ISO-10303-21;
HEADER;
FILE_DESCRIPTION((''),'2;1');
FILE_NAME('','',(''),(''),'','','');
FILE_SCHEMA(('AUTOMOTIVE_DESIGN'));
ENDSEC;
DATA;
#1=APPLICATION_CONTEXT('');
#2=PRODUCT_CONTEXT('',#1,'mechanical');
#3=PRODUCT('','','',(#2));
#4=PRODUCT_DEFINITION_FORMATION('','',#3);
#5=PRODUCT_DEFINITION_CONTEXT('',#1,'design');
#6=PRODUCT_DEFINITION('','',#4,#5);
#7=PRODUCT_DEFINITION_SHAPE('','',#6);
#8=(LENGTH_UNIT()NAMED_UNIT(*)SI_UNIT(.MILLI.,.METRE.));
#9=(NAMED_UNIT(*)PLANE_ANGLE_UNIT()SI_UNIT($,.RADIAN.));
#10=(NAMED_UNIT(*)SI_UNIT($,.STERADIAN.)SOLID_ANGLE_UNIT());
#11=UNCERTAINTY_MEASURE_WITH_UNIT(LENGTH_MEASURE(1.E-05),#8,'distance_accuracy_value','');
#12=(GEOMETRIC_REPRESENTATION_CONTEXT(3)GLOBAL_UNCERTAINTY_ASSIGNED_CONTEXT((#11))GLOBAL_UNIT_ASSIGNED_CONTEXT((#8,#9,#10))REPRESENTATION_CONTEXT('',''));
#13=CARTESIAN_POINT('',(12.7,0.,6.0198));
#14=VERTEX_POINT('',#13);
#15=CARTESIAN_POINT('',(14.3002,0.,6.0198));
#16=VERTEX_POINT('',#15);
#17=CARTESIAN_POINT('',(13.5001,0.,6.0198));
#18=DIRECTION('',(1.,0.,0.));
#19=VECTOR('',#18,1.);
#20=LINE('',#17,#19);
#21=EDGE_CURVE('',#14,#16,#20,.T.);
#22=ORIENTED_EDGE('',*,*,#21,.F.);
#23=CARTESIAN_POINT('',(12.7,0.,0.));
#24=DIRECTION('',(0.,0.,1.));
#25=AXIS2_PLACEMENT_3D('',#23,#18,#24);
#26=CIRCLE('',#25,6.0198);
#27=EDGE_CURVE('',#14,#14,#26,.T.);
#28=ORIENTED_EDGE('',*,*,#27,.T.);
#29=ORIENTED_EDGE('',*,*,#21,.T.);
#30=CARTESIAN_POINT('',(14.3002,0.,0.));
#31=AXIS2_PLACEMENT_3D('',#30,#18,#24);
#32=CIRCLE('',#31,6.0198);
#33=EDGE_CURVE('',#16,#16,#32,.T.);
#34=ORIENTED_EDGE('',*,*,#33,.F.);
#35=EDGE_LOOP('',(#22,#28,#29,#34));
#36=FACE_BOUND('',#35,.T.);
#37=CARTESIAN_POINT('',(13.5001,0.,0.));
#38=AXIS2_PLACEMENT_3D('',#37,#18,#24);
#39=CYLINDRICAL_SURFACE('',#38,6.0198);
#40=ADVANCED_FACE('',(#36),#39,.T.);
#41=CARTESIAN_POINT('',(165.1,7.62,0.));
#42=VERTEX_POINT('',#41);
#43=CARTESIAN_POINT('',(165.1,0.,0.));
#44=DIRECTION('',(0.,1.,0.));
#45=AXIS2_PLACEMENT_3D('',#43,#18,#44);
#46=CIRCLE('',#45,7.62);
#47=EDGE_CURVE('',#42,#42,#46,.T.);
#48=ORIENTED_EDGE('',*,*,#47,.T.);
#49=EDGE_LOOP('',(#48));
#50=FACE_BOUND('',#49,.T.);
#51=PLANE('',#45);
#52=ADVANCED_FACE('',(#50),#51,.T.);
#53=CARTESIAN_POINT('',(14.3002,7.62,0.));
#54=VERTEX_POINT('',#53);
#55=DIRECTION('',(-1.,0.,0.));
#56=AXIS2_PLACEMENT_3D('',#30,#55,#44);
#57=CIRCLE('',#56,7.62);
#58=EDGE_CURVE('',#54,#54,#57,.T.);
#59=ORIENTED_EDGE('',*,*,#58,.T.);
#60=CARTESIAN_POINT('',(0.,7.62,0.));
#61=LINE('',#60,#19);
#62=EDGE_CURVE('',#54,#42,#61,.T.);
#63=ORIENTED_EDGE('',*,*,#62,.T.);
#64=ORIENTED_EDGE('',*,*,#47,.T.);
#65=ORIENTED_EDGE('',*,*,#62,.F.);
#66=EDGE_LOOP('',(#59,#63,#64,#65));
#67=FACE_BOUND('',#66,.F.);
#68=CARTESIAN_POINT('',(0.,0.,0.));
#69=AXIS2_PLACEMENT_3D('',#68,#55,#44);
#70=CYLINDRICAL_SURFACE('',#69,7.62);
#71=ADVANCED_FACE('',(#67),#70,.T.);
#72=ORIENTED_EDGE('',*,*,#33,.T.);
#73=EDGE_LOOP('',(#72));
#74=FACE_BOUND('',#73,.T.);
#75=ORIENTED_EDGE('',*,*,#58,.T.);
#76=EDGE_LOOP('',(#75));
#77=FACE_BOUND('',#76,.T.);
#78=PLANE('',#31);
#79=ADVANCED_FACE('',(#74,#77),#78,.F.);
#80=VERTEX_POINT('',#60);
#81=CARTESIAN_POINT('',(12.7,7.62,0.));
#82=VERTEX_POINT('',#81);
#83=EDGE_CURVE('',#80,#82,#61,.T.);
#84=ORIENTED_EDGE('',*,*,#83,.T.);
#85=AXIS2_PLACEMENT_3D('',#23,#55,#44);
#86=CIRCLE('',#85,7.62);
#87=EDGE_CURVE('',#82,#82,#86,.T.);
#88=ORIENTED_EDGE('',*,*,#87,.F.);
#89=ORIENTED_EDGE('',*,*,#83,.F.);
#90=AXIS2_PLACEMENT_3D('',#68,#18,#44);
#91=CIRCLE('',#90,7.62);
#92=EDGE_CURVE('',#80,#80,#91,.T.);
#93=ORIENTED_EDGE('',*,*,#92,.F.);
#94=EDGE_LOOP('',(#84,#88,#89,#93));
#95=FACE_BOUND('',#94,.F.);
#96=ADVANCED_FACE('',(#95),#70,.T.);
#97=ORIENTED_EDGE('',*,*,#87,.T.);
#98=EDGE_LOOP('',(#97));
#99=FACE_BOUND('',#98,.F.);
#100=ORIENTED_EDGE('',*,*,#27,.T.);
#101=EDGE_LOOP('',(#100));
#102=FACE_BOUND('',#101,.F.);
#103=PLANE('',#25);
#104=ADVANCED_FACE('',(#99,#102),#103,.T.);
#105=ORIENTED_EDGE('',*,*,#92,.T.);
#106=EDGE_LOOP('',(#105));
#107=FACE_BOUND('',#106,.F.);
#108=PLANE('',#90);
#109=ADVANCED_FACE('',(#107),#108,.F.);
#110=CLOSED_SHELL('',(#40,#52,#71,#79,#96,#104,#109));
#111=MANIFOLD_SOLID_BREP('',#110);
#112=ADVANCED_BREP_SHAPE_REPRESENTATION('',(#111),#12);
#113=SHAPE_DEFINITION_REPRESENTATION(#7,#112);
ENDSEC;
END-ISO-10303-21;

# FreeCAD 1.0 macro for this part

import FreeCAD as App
import Part
import Sketcher
from FreeCAD import Vector
Q = App.Units.Quantity


def add_polygon(sketch, points):
    """Adds a closed chain of lines whose ends are joined by coincident constraints."""
    first, n = sketch.GeometryCount, len(points)
    for a, b in zip(points, points[1:] + points[:1]):
        sketch.addGeometry(Part.LineSegment(App.Vector(*a, 0), App.Vector(*b, 0)), False)
    for i in range(n):
        sketch.addConstraint(Sketcher.Constraint("Coincident", first + i, 2, first + (i + 1) % n, 1))

doc = App.newDocument("Part")
params = doc.addObject("Spreadsheet::Sheet", "Params")
for row, (alias, value) in enumerate([
    ("sketch1_diameter", "0.6 in"),
    ("pad1_length", "6.5 in"),
    ("sketch2_width", "0.063 in"),
    ("groove_angle", "360 deg"),
], start=1):
    params.set(f"A{row}", alias)
    params.set(f"B{row}", "=" + value)
    params.setAlias(f"B{row}", alias)

body = doc.addObject("PartDesign::Body", "Body")

# Sketch on YZ plane
sketch1 = doc.addObject("Sketcher::SketchObject", "Sketch")
body.addObject(sketch1)
sketch1.AttachmentSupport = (doc.YZ_Plane, [""])
sketch1.MapMode = "FlatFace"
sketch1.addGeometry(Part.Circle(Vector(0, 0, 0), Vector(0, 0, 1), 8), False)
sketch1.addConstraint(Sketcher.Constraint("Coincident", 0, 3, -1, 1))
sketch1.addConstraint(Sketcher.Constraint("Diameter", 0, Q("0.6 in")))
sketch1.setExpression("Constraints[1]", "Params.sketch1_diameter")
pad1 = doc.addObject("PartDesign::Pad", "Pad")
body.addObject(pad1)
pad1.Profile = sketch1
pad1.setExpression("Length", "Params.pad1_length")

# Sketch on XZ plane
sketch2 = doc.addObject("Sketcher::SketchObject", "Sketch001")
body.addObject(sketch2)
sketch2.AttachmentSupport = (doc.XZ_Plane, [""])
sketch2.MapMode = "FlatFace"
add_polygon(sketch2, [(12.7, 7.6), (12.7, 6), (14.3, 6), (14.3, 7.6)])  # lines 0-3
sketch2.addConstraint(Sketcher.Constraint("Vertical", 0))
sketch2.addConstraint(Sketcher.Constraint("Horizontal", 1))
sketch2.addConstraint(Sketcher.Constraint("Vertical", 2))
sketch2.addConstraint(Sketcher.Constraint("Horizontal", 3))
sketch2.addConstraint(Sketcher.Constraint("Equal", 3, 0))
sketch2.addConstraint(Sketcher.Constraint("DistanceX", -1, 1, 0, 2, Q("0.5 in")))
sketch2.addConstraint(Sketcher.Constraint("DistanceY", -1, 1, 2, 2, Q("0.3 in")))
sketch2.addConstraint(Sketcher.Constraint("DistanceX", 1, 1, 1, 2, Q("0.063 in")))
sketch2.setExpression("Constraints[11]", "Params.sketch2_width")
groove = doc.addObject("PartDesign::Groove", "Groove")
body.addObject(groove)
groove.Profile = sketch2
groove.ReferenceAxis = (sketch2, ["H_Axis"])
groove.setExpression("Angle", "Params.groove_angle")

doc.recompute()
